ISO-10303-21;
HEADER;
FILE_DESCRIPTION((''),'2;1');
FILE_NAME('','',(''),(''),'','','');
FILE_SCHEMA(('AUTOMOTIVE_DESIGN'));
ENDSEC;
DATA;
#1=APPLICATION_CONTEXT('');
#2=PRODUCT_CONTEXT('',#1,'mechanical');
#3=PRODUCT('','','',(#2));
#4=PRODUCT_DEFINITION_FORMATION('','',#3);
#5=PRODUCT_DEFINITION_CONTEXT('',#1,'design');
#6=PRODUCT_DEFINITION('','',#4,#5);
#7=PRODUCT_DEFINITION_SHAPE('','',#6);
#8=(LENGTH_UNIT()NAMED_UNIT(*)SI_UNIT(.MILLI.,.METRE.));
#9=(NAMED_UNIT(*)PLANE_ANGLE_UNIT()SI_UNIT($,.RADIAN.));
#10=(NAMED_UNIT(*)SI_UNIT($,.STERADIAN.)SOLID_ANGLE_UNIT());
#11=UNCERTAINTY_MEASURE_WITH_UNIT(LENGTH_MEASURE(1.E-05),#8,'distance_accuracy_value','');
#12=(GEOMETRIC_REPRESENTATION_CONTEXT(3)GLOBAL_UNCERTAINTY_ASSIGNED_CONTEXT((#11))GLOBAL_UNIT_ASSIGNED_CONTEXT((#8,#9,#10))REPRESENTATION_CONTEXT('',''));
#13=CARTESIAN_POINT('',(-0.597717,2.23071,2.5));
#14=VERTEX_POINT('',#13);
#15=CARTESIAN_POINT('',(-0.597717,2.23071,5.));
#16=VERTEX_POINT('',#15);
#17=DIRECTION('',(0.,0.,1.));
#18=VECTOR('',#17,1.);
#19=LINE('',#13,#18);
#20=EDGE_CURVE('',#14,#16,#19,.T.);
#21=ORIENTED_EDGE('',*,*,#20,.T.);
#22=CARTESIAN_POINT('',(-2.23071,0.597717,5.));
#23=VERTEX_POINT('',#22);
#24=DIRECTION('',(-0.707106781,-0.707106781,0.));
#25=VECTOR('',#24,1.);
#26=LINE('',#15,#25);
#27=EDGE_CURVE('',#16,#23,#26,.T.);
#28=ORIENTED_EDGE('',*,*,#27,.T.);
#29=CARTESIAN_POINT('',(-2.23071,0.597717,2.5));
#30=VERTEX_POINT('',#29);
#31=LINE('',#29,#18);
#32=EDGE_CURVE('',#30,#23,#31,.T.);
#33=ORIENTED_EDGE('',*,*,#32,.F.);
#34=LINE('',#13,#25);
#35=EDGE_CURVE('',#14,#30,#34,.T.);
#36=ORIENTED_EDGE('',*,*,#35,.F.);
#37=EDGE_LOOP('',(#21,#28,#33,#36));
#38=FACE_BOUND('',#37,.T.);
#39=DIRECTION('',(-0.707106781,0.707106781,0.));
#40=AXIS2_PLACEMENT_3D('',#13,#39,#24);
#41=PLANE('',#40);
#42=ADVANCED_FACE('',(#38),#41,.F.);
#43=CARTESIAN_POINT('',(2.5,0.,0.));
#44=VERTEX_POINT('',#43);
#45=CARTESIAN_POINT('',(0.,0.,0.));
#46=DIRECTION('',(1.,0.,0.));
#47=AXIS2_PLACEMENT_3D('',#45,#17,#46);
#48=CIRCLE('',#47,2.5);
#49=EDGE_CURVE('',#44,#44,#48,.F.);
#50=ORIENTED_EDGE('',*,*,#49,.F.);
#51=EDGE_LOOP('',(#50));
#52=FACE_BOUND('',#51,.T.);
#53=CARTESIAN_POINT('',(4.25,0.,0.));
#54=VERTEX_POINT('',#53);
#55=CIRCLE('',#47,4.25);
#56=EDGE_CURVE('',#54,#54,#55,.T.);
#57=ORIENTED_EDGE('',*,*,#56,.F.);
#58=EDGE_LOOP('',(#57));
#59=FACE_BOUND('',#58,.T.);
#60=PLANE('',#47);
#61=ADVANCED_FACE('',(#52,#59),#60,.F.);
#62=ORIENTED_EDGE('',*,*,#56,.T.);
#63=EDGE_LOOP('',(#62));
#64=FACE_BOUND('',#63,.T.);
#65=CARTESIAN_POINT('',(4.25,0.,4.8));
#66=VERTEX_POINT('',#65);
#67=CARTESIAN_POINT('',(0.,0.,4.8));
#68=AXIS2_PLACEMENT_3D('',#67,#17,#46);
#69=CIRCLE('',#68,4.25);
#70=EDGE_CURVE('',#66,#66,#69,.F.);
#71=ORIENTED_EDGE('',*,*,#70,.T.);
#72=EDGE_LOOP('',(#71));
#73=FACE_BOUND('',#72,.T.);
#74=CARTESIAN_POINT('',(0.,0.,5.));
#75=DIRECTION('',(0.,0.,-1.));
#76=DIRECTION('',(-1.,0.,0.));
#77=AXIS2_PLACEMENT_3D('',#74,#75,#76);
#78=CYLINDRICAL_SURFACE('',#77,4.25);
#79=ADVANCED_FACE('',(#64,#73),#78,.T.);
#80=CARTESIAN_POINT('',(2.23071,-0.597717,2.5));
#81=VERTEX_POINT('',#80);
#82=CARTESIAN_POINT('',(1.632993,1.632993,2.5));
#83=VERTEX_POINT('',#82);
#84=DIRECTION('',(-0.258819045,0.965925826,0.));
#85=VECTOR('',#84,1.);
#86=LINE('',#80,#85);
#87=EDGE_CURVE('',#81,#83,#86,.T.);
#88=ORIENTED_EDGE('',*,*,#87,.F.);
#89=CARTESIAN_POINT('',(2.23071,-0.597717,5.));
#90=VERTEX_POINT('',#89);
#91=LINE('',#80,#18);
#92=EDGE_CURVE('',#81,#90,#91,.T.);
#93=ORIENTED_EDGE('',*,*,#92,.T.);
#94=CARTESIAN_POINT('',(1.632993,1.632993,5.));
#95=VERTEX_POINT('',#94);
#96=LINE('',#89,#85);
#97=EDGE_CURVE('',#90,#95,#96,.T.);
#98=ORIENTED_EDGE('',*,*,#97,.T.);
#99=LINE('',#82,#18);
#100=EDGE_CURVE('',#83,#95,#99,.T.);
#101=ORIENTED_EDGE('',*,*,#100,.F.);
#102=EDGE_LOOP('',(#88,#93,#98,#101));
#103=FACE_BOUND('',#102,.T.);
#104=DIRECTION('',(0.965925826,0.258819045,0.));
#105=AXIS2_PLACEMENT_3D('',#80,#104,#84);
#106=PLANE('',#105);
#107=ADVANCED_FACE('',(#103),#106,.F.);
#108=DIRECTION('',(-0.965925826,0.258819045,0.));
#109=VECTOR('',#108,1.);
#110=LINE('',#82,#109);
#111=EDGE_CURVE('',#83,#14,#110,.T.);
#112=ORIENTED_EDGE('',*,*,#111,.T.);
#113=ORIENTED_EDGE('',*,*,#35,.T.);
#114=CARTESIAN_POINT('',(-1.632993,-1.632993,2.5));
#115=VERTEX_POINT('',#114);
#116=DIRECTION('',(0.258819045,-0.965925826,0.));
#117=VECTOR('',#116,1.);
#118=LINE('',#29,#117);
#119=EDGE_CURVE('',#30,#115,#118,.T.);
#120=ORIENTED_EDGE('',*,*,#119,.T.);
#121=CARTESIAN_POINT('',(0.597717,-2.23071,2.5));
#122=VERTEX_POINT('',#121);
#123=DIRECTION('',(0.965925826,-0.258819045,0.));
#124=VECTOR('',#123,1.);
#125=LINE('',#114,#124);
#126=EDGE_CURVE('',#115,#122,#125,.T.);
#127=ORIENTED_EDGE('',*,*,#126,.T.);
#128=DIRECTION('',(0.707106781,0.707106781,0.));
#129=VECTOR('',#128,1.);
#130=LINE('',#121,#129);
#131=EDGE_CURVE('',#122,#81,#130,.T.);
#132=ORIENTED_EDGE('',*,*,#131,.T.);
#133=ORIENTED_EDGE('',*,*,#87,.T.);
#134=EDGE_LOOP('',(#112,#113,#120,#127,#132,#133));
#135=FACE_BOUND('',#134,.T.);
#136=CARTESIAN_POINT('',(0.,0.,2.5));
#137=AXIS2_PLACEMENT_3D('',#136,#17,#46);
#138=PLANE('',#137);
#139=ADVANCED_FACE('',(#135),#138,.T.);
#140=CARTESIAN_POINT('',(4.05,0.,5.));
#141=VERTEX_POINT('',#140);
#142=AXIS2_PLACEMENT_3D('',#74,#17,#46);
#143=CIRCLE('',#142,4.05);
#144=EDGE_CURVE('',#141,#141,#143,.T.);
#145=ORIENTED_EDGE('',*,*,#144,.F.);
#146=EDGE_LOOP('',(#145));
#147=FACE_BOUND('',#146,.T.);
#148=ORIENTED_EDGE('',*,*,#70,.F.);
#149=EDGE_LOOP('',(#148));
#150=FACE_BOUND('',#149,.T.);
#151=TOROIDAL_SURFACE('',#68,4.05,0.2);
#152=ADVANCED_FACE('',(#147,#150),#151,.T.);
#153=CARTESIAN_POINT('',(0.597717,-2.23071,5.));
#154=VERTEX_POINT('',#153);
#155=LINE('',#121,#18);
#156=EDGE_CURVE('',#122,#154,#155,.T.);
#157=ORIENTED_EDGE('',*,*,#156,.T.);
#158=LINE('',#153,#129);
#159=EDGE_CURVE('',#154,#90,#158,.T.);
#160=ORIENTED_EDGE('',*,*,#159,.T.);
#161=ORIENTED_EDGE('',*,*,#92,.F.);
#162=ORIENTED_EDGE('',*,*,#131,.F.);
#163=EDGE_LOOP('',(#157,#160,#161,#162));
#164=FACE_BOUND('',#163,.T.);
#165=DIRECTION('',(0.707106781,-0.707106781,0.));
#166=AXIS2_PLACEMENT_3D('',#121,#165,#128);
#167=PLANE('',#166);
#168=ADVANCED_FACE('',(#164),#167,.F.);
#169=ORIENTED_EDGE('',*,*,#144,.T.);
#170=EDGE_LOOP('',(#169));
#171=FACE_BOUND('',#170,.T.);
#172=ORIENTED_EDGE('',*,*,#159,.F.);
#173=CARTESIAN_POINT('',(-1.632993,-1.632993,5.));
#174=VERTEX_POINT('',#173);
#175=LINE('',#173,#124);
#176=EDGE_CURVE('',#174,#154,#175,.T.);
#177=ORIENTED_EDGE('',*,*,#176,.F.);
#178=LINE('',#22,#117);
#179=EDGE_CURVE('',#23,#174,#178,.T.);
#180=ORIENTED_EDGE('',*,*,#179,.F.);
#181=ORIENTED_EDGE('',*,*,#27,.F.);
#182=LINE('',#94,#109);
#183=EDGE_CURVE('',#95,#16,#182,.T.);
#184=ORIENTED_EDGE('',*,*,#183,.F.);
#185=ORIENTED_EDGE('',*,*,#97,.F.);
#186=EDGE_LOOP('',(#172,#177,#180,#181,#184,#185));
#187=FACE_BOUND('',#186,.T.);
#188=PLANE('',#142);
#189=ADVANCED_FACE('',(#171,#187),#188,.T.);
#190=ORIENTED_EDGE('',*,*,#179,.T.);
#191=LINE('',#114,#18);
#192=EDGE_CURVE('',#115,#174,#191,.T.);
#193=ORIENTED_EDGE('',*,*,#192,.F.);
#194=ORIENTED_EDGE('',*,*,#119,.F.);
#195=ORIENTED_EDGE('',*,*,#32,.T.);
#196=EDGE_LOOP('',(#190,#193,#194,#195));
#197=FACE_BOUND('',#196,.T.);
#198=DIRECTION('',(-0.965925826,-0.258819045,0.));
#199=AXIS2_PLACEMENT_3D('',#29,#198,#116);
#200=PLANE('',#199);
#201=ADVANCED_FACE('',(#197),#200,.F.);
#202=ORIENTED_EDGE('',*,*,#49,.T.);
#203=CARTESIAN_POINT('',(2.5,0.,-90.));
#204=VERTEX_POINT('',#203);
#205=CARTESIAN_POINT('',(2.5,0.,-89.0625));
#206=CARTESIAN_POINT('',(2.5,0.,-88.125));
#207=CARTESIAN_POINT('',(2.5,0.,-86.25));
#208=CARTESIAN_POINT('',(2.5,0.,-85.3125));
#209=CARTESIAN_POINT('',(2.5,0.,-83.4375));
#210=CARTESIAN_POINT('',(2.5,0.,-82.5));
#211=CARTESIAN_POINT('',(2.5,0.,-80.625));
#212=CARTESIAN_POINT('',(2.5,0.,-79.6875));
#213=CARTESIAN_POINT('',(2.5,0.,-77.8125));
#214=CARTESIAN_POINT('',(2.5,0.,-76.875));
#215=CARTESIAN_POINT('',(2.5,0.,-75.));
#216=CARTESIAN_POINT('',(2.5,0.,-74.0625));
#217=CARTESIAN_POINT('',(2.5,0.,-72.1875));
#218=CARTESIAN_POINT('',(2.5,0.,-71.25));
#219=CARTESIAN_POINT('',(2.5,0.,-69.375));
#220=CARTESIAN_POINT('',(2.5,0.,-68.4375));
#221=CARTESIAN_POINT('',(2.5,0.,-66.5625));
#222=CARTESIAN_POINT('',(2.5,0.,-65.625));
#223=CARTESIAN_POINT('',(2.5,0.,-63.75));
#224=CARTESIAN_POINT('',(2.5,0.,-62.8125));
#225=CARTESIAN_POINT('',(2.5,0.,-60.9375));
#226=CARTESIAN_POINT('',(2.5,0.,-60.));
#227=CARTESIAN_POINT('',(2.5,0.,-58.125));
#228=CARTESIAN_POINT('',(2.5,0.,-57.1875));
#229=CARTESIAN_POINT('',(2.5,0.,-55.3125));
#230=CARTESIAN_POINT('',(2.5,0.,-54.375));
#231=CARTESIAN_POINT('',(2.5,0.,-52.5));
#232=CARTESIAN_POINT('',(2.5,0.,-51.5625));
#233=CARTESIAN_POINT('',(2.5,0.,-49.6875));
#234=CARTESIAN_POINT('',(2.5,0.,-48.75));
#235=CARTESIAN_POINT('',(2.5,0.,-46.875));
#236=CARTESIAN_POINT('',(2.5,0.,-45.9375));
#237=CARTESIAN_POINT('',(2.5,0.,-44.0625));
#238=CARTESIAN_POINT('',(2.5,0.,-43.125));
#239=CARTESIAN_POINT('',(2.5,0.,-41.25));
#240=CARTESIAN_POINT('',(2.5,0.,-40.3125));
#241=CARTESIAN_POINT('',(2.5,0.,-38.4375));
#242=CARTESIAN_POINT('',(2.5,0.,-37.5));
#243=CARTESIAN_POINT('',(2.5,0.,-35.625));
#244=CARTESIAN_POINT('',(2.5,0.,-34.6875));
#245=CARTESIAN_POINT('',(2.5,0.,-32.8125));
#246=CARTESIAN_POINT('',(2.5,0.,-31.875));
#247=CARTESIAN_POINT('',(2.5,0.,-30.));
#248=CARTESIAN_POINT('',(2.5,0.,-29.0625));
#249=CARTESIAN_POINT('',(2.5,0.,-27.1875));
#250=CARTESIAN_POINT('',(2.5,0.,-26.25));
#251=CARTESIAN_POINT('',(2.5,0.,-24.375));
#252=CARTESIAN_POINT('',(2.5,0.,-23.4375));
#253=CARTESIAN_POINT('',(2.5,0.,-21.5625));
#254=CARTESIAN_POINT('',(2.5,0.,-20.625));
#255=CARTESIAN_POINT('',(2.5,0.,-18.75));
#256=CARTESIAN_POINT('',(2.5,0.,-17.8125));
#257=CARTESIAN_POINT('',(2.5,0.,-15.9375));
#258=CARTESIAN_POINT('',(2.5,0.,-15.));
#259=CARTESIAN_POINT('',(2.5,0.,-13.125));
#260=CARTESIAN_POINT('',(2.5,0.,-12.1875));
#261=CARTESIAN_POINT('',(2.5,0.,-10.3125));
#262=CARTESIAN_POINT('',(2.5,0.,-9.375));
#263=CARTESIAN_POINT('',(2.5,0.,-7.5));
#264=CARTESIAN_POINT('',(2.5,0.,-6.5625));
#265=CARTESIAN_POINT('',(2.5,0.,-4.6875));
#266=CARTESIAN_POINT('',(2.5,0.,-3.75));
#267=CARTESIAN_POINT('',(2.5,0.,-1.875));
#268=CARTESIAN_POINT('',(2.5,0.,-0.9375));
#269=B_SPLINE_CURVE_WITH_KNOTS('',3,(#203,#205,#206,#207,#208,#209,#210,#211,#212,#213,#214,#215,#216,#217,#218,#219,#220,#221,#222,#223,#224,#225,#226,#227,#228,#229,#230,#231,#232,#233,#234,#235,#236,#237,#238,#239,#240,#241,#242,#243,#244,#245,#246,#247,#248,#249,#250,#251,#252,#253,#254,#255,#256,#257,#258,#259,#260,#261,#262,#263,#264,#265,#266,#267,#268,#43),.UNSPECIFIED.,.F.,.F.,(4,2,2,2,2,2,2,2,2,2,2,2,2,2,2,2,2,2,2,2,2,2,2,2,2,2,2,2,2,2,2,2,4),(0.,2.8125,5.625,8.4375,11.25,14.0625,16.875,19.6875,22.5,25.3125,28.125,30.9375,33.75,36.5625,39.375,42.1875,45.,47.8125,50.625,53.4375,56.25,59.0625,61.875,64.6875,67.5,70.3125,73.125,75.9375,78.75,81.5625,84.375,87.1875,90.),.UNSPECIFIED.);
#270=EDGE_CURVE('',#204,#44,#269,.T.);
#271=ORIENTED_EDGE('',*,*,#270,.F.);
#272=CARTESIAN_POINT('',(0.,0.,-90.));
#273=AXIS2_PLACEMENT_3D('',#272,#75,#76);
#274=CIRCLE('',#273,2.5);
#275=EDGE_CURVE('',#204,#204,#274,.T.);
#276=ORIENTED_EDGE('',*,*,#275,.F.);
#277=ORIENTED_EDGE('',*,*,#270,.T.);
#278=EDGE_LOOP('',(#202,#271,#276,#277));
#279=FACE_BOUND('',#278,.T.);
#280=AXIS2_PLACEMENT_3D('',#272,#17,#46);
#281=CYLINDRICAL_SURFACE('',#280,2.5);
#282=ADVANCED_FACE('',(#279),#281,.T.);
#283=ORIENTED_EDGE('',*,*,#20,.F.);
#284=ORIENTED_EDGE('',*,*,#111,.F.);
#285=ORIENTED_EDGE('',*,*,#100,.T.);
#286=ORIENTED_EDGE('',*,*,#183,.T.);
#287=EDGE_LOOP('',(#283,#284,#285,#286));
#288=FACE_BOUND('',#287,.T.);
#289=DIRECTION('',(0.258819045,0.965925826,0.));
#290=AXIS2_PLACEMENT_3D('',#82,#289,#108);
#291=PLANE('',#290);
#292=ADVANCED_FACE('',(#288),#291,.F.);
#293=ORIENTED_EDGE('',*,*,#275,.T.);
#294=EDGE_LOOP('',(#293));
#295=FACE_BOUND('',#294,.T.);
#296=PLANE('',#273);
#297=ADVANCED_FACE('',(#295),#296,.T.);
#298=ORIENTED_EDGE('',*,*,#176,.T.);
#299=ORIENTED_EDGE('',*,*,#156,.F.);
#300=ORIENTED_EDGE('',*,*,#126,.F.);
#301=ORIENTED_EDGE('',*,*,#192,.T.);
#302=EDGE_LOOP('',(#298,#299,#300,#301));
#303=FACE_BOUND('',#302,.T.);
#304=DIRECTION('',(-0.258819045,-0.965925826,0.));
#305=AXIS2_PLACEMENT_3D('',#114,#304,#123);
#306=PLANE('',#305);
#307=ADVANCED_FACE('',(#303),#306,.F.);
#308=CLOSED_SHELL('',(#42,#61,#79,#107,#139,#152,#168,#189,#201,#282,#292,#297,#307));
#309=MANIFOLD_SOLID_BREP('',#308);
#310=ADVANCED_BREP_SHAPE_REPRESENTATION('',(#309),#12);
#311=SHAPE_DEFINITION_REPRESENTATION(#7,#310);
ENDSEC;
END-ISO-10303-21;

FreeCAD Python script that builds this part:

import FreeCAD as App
import Part
import Sketcher

V = App.Vector
Q = App.Units.Quantity


def edges_at(feature, points):
    """Names of the edges that pass closest to the given points."""
    edges = feature.Shape.Edges
    near = lambda p: min(range(len(edges)), key=lambda i: edges[i].distToShape(Part.Vertex(*p))[0])
    return sorted({f"Edge{near(p) + 1}" for p in points})

doc = App.newDocument("Part")
body = doc.addObject("PartDesign::Body", "Body")

sketch1 = body.newObject("Sketcher::SketchObject", "Sketch")
sketch1.AttachmentSupport = (doc.getObject("XY_Plane"), [""])
sketch1.MapMode = "FlatFace"
sketch1.addGeometry(Part.Circle(V(0, 0, 0), V(0, 0, 1), 4.2), False)
sketch1.addConstraint([
    Sketcher.Constraint("Coincident", 0, 3, -1, 1),
    Sketcher.Constraint("Diameter", 0, 8.5),
])
pad1 = body.newObject("PartDesign::Pad", "Pad")
pad1.Profile = sketch1
pad1.Length = 5

sketch2 = body.newObject("Sketcher::SketchObject", "Sketch001")
sketch2.AttachmentSupport = (doc.getObject("XY_Plane"), [""])
sketch2.MapMode = "FlatFace"
sketch2.AttachmentOffset = App.Placement(V(0, 0, 5), App.Rotation())
sketch2.addGeometry([
    Part.LineSegment(V(-1.6, -1.6, 0), V(0.6, -2.2, 0)),
    Part.LineSegment(V(0.6, -2.2, 0), V(2.2, -0.6, 0)),
    Part.LineSegment(V(2.2, -0.6, 0), V(1.6, 1.6, 0)),
    Part.LineSegment(V(1.6, 1.6, 0), V(-0.6, 2.2, 0)),
    Part.LineSegment(V(-0.6, 2.2, 0), V(-2.2, 0.6, 0)),
    Part.LineSegment(V(-2.2, 0.6, 0), V(-1.6, -1.6, 0)),
], False)
sketch2.addConstraint([
    Sketcher.Constraint("Coincident", 0, 2, 1, 1),
    Sketcher.Constraint("Coincident", 1, 2, 2, 1),
    Sketcher.Constraint("Coincident", 2, 2, 3, 1),
    Sketcher.Constraint("Coincident", 3, 2, 4, 1),
    Sketcher.Constraint("Coincident", 4, 2, 5, 1),
    Sketcher.Constraint("Coincident", 5, 2, 0, 1),
    Sketcher.Constraint("Symmetric", 0, 2, 3, 2, -1, 1),
    Sketcher.Constraint("Symmetric", 1, 2, 4, 2, -1, 1),
    Sketcher.Constraint("Symmetric", 2, 2, 5, 2, -1, 1),
    Sketcher.Constraint("Equal", 0, 1),
    Sketcher.Constraint("Equal", 1, 2),
    Sketcher.Constraint("Angle", 0, Q("-15 deg")),
    Sketcher.Constraint("Angle", 1, Q("45 deg")),
    Sketcher.Constraint("Angle", 2, Q("105 deg")),
    Sketcher.Constraint("Distance", 0, 2.309401),
])
pocket1 = body.newObject("PartDesign::Pocket", "Pocket")
pocket1.Profile = sketch2
pocket1.Length = 2.5

sketch3 = body.newObject("Sketcher::SketchObject", "Sketch002")
sketch3.AttachmentSupport = (doc.getObject("XY_Plane"), [""])
sketch3.MapMode = "FlatFace"
sketch3.addGeometry(Part.Circle(V(0, 0, 0), V(0, 0, 1), 2.5), False)
sketch3.addConstraint([
    Sketcher.Constraint("Coincident", 0, 3, -1, 1),
    Sketcher.Constraint("Diameter", 0, 5.0),
])
pad2 = body.newObject("PartDesign::Pad", "Pad001")
pad2.Profile = sketch3
pad2.Length = 90
pad2.Reversed = True
doc.recompute()

fillet = body.newObject("PartDesign::Fillet", "Fillet")
fillet.Base = (pad2, edges_at(pad2, [(-4.25, 0, 5)]))
fillet.Radius = 0.2

doc.recompute()
